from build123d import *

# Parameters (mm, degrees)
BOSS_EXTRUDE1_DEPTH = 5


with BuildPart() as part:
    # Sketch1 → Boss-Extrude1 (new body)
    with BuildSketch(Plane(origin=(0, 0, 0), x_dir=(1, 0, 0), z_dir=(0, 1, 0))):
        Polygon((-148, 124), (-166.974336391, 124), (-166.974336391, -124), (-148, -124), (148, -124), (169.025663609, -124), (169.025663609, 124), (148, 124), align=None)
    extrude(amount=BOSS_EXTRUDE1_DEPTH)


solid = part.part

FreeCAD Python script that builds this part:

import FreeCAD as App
import Part
import Sketcher
from FreeCAD import Vector
Q = App.Units.Quantity


def add_polygon(sketch, points):
    """Adds a closed chain of lines whose ends are joined by coincident constraints."""
    first, n = sketch.GeometryCount, len(points)
    for a, b in zip(points, points[1:] + points[:1]):
        sketch.addGeometry(Part.LineSegment(App.Vector(*a, 0), App.Vector(*b, 0)), False)
    for i in range(n):
        sketch.addConstraint(Sketcher.Constraint("Coincident", first + i, 2, first + (i + 1) % n, 1))

doc = App.newDocument("Part")
body = doc.addObject("PartDesign::Body", "Body")

# Sketch on XZ plane
sketch1 = body.newObject("Sketcher::SketchObject", "Sketch")
sketch1.AttachmentSupport = (doc.getObject("XZ_Plane"), [""])
sketch1.MapMode = "FlatFace"
add_polygon(sketch1, [(-167, -124), (-167, 124), (169, 124), (169, -124)])  # lines 0-3
sketch1.addConstraint([
    Sketcher.Constraint("Vertical", 0),
    Sketcher.Constraint("Horizontal", 1),
    Sketcher.Constraint("Vertical", 2),
    Sketcher.Constraint("Horizontal", 3),
    Sketcher.Constraint("DistanceX", 1, 1, 1, 2, Q("336 mm")),
    Sketcher.Constraint("DistanceY", 0, 1, 0, 2, Q("248 mm")),
    Sketcher.Constraint("DistanceY", -1, 1, 0, 2, Q("124 mm")),
    Sketcher.Constraint("DistanceX", 0, 2, -1, 1, Q("166.974336 mm")),
])
pad1 = body.newObject("PartDesign::Pad", "Pad")
pad1.Profile = sketch1
pad1.Length = 5
pad1.Reversed = True

doc.recompute()
